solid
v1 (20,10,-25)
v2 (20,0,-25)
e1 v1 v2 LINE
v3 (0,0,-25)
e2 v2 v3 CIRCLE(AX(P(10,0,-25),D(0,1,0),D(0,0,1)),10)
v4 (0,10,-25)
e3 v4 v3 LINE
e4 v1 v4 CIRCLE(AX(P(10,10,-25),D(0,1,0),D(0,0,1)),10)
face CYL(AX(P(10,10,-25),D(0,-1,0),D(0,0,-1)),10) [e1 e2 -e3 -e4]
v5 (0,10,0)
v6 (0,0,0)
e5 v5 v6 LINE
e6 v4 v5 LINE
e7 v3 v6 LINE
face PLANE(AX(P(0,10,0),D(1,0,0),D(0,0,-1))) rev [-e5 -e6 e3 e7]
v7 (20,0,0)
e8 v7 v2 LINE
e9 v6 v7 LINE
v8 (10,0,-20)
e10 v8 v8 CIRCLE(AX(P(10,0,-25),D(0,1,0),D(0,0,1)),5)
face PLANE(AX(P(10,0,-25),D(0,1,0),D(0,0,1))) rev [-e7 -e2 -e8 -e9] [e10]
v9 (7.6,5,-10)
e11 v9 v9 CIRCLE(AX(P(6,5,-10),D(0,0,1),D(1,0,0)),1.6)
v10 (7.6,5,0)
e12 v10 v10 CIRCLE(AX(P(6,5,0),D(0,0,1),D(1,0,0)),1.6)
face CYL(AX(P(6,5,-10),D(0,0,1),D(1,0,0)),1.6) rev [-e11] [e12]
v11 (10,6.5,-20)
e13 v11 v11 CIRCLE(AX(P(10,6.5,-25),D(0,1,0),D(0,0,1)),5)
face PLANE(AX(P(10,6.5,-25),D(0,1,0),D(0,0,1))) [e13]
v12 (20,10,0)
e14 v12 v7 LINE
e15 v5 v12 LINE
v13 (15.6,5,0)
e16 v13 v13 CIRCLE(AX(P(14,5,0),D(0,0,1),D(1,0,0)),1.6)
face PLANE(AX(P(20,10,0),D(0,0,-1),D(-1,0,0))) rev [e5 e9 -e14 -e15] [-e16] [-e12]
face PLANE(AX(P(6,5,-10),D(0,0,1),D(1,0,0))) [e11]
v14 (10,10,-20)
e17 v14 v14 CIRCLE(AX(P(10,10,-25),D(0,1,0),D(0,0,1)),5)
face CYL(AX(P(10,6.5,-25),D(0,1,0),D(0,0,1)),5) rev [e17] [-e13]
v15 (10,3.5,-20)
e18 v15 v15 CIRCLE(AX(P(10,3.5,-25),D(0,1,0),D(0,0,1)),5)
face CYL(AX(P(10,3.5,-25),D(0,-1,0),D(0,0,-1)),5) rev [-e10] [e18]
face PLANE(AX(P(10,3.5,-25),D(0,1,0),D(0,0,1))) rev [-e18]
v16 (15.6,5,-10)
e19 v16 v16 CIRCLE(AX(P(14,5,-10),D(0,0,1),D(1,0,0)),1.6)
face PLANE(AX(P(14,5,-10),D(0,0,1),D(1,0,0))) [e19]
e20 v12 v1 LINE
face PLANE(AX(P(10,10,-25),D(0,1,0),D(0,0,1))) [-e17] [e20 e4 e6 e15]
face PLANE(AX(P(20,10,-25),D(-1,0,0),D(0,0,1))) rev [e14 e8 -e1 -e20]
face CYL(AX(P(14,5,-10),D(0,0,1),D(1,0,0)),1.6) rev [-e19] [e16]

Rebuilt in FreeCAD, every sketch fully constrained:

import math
import FreeCAD as App
import Part
import Sketcher
Q = App.Units.Quantity

doc = App.newDocument("Part")
body = doc.addObject("PartDesign::Body", "Body")

# Sketch on XZ plane
sketch1 = doc.addObject("Sketcher::SketchObject", "Sketch")
body.addObject(sketch1)
sketch1.AttachmentSupport = (doc.XZ_Plane, [""])
sketch1.MapMode = "FlatFace"
sketch1.addGeometry([
    Part.LineSegment(App.Vector(0, -25, 0), App.Vector(0, 0, 0)),
    Part.LineSegment(App.Vector(0, 0, 0), App.Vector(20, 0, 0)),
    Part.LineSegment(App.Vector(20, 0, 0), App.Vector(20, -25, 0)),
    Part.ArcOfCircle(Part.Circle(App.Vector(10, -25, 0), App.Vector(0, 0, 1), 10), math.radians(180), math.radians(360)),
], False)
sketch1.addConstraint([
    Sketcher.Constraint("Coincident", 0, 2, 1, 1),
    Sketcher.Constraint("Coincident", 1, 2, 2, 1),
    Sketcher.Constraint("Tangent", 2, 2, 3, 2),
    Sketcher.Constraint("Tangent", 3, 1, 0, 1),
    Sketcher.Constraint("Vertical", 0),
    Sketcher.Constraint("Horizontal", 1),
    Sketcher.Constraint("Vertical", 2),
    Sketcher.Constraint("Coincident", 0, 2, -1, 1),
    Sketcher.Constraint("Radius", 3, Q("10 mm")),
    Sketcher.Constraint("DistanceY", 0, 1, 0, 2, Q("25 mm")),
])
pad1 = doc.addObject("PartDesign::Pad", "Pad")
body.addObject(pad1)
pad1.Profile = sketch1
pad1.Length = 10
pad1.Reversed = True

# Sketch on XZ plane
sketch2 = doc.addObject("Sketcher::SketchObject", "Sketch001")
body.addObject(sketch2)
sketch2.AttachmentSupport = (doc.XZ_Plane, [""])
sketch2.MapMode = "FlatFace"
sketch2.addGeometry(Part.Circle(App.Vector(10, -25, 0), App.Vector(0, 0, 1), 5), False)
sketch2.addConstraint([
    Sketcher.Constraint("Diameter", 0, Q("10 mm")),
    Sketcher.Constraint("DistanceX", -1, 1, 0, 3, Q("10 mm")),
    Sketcher.Constraint("DistanceY", 0, 3, -1, 1, Q("25 mm")),
])
pocket1 = doc.addObject("PartDesign::Pocket", "Pocket")
body.addObject(pocket1)
pocket1.Profile = sketch2
pocket1.Length = 3.5

# Sketch on XZ plane
sketch3 = doc.addObject("Sketcher::SketchObject", "Sketch002")
body.addObject(sketch3)
sketch3.AttachmentSupport = (doc.XZ_Plane, [""])
sketch3.MapMode = "FlatFace"
sketch3.AttachmentOffset = App.Placement(App.Vector(0, 0, -6.5), App.Rotation())
sketch3.addGeometry(Part.Circle(App.Vector(10, -25, 0), App.Vector(0, 0, 1), 5), False)
sketch3.addConstraint([
    Sketcher.Constraint("Diameter", 0, Q("10 mm")),
    Sketcher.Constraint("DistanceX", -1, 1, 0, 3, Q("10 mm")),
    Sketcher.Constraint("DistanceY", 0, 3, -1, 1, Q("25 mm")),
])
pocket2 = doc.addObject("PartDesign::Pocket", "Pocket001")
body.addObject(pocket2)
pocket2.Profile = sketch3
pocket2.Length = 3.5

# Sketch on XY plane
sketch4 = doc.addObject("Sketcher::SketchObject", "Sketch003")
body.addObject(sketch4)
sketch4.AttachmentSupport = (doc.XY_Plane, [""])
sketch4.MapMode = "FlatFace"
sketch4.addGeometry([
    Part.Circle(App.Vector(6, 5, 0), App.Vector(0, 0, 1), 1.6),
    Part.Circle(App.Vector(14, 5, 0), App.Vector(0, 0, 1), 1.6),
], False)
sketch4.addConstraint([
    Sketcher.Constraint("Equal", 0, 1),
    Sketcher.Constraint("Horizontal", 0, 3, 1, 3),
    Sketcher.Constraint("Diameter", 0, Q("3.2 mm")),
    Sketcher.Constraint("DistanceX", -1, 1, 0, 3, Q("6 mm")),
    Sketcher.Constraint("DistanceY", -1, 1, 0, 3, Q("5 mm")),
    Sketcher.Constraint("DistanceX", -1, 1, 1, 3, Q("14 mm")),
])
pocket3 = doc.addObject("PartDesign::Pocket", "Pocket002")
body.addObject(pocket3)
pocket3.Profile = sketch4
pocket3.Length = 10

doc.recompute()
